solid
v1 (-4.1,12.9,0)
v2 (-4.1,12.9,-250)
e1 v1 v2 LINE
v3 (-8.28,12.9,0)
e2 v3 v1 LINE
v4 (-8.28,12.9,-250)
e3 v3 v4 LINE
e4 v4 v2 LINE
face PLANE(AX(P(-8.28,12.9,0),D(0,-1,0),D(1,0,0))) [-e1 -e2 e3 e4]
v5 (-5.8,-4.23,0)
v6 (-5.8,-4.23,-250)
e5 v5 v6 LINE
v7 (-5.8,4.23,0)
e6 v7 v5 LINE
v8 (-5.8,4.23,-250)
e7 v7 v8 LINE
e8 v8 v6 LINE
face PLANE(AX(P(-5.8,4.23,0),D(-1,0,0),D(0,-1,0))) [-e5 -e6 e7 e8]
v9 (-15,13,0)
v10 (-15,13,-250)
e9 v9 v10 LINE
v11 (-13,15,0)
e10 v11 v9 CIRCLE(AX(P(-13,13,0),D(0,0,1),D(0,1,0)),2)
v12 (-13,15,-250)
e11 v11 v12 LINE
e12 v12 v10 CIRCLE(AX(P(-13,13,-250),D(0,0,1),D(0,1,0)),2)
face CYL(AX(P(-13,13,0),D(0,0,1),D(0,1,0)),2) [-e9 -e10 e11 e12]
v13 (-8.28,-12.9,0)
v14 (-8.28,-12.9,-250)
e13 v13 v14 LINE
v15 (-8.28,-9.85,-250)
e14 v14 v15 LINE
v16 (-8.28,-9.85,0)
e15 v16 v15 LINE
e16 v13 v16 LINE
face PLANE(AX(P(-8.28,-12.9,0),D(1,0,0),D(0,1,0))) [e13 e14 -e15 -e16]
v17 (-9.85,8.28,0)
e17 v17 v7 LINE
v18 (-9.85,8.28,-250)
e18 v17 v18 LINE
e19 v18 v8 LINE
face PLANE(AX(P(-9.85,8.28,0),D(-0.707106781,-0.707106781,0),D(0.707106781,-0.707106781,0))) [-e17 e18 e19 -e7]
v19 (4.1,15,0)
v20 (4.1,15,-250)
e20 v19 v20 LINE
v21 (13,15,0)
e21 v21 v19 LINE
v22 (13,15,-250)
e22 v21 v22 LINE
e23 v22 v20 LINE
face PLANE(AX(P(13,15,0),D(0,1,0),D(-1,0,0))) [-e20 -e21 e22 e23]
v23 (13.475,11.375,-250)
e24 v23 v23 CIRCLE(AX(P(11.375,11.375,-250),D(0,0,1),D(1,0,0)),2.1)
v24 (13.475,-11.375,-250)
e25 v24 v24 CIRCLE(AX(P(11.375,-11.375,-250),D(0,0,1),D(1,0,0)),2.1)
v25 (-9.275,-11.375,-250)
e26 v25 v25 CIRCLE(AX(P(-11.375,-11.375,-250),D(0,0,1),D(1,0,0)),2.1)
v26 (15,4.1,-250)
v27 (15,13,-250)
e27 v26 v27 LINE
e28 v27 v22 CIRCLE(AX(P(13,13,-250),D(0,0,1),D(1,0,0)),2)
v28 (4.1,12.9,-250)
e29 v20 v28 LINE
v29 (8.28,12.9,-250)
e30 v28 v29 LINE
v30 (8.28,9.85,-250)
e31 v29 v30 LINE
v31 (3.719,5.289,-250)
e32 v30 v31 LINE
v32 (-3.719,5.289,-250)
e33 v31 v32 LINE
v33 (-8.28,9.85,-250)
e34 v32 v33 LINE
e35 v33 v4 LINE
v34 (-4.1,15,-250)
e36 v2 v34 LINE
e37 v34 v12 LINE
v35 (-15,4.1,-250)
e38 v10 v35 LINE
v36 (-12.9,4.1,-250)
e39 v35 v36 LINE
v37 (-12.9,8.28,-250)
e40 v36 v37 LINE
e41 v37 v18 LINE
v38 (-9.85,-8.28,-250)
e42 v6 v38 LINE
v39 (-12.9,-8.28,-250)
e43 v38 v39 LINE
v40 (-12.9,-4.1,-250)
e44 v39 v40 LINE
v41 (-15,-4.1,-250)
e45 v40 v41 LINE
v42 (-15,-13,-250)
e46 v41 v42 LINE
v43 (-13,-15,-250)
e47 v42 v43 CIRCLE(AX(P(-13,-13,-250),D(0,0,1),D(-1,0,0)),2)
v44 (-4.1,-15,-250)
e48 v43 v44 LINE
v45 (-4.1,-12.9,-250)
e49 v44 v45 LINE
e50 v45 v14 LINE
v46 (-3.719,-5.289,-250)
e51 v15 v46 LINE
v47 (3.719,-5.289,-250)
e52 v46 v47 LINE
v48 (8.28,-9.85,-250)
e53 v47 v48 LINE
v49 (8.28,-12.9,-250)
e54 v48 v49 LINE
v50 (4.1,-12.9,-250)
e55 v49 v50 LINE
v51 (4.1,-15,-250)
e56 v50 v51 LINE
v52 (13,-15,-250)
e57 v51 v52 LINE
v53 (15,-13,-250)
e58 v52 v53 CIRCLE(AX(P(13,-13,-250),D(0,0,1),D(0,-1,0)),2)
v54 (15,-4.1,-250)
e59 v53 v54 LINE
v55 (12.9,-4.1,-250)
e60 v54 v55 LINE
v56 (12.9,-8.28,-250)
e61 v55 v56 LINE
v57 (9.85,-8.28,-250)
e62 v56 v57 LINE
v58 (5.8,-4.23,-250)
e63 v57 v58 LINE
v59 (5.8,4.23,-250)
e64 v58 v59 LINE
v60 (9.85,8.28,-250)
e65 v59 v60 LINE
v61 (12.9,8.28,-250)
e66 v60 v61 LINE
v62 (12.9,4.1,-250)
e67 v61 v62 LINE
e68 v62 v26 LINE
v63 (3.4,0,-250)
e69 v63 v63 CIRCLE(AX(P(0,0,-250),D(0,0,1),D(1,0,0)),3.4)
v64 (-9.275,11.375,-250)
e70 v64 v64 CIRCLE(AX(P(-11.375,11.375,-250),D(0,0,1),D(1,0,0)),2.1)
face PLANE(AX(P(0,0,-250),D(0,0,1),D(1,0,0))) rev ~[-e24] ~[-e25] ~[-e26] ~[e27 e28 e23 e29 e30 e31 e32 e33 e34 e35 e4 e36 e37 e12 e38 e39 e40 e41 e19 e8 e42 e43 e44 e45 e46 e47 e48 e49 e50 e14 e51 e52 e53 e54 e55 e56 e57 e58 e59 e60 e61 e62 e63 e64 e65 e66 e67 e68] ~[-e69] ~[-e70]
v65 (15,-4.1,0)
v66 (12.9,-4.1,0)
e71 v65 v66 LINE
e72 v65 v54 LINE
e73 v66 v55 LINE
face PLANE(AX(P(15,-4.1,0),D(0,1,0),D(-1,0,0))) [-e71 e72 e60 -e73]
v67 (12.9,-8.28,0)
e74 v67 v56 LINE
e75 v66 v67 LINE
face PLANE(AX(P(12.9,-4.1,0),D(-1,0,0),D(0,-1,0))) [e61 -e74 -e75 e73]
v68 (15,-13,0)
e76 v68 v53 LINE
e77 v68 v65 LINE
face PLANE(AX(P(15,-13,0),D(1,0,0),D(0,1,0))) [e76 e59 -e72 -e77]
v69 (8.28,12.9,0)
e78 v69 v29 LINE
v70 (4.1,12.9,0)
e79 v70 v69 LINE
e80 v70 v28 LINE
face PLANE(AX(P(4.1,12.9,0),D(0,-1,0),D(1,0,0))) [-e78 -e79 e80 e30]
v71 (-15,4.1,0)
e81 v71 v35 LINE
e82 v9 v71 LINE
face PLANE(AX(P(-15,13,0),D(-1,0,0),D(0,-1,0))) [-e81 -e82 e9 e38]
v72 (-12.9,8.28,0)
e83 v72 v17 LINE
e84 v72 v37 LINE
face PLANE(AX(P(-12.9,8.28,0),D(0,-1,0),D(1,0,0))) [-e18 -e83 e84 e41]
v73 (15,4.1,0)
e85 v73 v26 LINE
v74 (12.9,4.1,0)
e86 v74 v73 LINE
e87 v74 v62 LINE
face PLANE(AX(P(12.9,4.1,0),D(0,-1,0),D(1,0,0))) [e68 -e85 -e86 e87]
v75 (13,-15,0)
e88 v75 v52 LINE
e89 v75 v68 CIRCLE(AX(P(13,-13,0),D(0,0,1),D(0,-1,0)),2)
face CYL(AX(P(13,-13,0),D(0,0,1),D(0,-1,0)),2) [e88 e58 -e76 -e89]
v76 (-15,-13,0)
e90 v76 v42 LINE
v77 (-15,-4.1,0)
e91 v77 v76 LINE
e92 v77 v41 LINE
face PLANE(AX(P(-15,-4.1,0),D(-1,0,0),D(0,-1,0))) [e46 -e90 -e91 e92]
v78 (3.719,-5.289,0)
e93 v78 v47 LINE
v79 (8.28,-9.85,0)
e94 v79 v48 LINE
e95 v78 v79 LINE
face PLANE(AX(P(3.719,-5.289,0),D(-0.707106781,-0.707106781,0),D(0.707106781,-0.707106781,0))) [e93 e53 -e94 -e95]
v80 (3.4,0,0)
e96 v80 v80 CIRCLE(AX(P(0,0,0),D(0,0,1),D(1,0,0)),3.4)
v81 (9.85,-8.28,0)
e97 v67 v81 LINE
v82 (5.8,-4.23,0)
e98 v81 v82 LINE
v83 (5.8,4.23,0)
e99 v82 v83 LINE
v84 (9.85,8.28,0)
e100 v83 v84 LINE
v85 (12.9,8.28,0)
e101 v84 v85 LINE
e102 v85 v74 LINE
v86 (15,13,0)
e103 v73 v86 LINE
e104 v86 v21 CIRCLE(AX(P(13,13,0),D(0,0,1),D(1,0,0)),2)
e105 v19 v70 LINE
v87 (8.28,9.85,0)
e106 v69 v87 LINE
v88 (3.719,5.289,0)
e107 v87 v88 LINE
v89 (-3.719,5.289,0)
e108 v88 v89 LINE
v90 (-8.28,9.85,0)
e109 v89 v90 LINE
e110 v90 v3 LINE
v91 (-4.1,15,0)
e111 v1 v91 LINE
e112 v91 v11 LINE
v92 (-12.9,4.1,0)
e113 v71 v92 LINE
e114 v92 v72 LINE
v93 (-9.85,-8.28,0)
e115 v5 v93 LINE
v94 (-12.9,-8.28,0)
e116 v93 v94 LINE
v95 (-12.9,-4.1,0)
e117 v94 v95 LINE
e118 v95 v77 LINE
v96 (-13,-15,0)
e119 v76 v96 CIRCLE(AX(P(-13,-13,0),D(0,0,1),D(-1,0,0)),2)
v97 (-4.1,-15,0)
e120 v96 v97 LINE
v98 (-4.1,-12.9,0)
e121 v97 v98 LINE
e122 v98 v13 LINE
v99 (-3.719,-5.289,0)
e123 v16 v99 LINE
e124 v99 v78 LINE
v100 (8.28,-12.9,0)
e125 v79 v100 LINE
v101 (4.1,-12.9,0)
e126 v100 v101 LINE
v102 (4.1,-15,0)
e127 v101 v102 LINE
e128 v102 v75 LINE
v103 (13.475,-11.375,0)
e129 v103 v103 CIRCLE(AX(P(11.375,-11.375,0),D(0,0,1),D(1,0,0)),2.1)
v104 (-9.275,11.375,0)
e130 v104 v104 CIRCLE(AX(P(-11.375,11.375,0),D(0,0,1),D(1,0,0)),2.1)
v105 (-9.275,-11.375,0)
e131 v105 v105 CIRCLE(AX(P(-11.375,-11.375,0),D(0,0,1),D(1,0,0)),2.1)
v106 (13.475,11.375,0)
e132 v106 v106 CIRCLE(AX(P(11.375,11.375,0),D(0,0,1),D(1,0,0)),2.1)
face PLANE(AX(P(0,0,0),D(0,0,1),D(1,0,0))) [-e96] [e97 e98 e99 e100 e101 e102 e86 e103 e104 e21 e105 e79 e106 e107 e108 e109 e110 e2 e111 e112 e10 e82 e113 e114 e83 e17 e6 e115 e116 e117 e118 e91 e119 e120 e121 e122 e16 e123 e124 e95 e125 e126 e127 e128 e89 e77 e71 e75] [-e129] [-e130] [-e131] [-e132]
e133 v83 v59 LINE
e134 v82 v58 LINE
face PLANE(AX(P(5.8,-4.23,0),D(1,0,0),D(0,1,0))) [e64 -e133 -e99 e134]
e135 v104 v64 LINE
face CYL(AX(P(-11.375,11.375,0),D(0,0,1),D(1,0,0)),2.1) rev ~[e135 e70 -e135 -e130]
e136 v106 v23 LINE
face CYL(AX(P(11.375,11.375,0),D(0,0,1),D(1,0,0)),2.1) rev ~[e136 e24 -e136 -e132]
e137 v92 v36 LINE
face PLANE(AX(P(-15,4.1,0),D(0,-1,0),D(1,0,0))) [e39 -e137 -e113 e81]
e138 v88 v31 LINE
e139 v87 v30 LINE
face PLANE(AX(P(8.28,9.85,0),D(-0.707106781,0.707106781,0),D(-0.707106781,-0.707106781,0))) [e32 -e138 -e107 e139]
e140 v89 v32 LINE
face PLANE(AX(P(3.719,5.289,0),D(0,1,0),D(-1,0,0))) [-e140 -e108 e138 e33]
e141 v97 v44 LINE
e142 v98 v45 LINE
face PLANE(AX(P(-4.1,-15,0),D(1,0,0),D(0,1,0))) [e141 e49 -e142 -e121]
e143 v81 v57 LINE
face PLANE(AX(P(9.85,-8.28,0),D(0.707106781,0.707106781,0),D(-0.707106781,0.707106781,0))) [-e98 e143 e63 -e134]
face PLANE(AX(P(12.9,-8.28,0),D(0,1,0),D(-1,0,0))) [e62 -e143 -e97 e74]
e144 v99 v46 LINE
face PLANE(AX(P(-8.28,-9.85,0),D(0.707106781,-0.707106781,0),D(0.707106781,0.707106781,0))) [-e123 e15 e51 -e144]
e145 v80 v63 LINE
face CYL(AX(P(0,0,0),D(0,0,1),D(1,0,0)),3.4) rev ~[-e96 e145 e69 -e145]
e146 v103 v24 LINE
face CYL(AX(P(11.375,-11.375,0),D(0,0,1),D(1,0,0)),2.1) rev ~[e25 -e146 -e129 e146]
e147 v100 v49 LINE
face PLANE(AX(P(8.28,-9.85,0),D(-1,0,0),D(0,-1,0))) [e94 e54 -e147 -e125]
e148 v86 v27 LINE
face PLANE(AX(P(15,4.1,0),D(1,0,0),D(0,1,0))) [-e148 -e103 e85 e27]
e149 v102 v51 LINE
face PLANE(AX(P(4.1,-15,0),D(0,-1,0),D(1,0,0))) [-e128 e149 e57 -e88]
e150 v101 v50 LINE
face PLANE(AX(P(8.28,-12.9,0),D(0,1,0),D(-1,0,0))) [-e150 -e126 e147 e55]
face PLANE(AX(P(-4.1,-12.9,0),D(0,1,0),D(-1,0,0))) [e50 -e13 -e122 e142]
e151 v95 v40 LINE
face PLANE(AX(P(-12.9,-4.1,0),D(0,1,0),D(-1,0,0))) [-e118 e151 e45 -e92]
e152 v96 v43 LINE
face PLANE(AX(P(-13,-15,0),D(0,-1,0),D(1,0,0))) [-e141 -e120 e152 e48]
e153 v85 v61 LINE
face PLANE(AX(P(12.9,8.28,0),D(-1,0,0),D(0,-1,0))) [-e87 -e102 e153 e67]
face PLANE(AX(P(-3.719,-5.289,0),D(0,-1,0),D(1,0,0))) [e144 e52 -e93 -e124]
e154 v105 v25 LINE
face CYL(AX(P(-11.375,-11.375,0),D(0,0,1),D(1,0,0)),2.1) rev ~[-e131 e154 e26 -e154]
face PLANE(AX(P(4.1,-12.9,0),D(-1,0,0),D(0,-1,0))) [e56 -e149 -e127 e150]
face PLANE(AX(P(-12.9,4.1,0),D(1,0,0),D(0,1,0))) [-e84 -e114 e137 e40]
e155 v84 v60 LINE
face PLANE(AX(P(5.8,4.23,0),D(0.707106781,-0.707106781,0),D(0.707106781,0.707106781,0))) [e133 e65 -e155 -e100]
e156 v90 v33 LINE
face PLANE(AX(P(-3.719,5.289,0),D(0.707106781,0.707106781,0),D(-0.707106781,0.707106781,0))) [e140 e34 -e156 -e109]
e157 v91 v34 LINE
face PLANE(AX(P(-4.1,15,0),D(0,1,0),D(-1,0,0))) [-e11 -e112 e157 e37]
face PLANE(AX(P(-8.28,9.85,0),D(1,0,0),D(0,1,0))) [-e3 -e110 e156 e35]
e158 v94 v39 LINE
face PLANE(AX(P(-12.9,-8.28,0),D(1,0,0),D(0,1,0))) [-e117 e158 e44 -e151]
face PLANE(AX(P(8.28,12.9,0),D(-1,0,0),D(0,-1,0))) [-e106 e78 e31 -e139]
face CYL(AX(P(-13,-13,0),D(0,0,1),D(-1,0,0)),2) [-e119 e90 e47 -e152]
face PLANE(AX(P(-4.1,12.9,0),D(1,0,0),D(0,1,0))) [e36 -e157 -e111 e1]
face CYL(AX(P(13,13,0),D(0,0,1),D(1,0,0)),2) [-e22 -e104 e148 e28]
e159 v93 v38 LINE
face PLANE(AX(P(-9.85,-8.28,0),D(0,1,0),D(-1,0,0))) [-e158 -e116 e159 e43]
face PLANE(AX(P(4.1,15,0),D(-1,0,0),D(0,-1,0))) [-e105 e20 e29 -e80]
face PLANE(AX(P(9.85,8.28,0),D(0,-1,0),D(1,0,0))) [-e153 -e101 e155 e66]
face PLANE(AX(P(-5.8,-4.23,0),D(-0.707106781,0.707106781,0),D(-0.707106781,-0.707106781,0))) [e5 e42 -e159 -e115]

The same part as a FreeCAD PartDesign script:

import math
import FreeCAD as App
import Part
import Sketcher
from FreeCAD import Vector

doc = App.newDocument("Part")
body = doc.addObject("PartDesign::Body", "Body")

sketch1 = body.newObject("Sketcher::SketchObject", "Sketch")
sketch1.AttachmentSupport = (doc.getObject("XY_Plane"), [""])
sketch1.MapMode = "FlatFace"
sketch1.addGeometry([
    Part.LineSegment(Vector(-15, 13, 0), Vector(-15, 4.1, 0)),
    Part.LineSegment(Vector(-15, 4.1, 0), Vector(-12.9, 4.1, 0)),
    Part.LineSegment(Vector(-12.9, 4.1, 0), Vector(-12.9, 8.3, 0)),
    Part.LineSegment(Vector(-12.9, 8.3, 0), Vector(-9.8, 8.3, 0)),
    Part.LineSegment(Vector(-9.8, 8.3, 0), Vector(-5.8, 4.2, 0)),
    Part.LineSegment(Vector(-5.8, 4.2, 0), Vector(-5.8, -4.2, 0)),
    Part.LineSegment(Vector(-5.8, -4.2, 0), Vector(-9.8, -8.3, 0)),
    Part.LineSegment(Vector(-9.8, -8.3, 0), Vector(-12.9, -8.3, 0)),
    Part.LineSegment(Vector(-12.9, -8.3, 0), Vector(-12.9, -4.1, 0)),
    Part.LineSegment(Vector(-12.9, -4.1, 0), Vector(-15, -4.1, 0)),
    Part.LineSegment(Vector(-15, -4.1, 0), Vector(-15, -13, 0)),
    Part.ArcOfCircle(Part.Circle(Vector(-13, -13, 0), Vector(0, 0, 1), 2), math.radians(180), math.radians(270)),
    Part.LineSegment(Vector(-13, -15, 0), Vector(-4.1, -15, 0)),
    Part.LineSegment(Vector(-4.1, -15, 0), Vector(-4.1, -12.9, 0)),
    Part.LineSegment(Vector(-4.1, -12.9, 0), Vector(-8.3, -12.9, 0)),
    Part.LineSegment(Vector(-8.3, -12.9, 0), Vector(-8.3, -9.8, 0)),
    Part.LineSegment(Vector(-8.3, -9.8, 0), Vector(-3.7, -5.3, 0)),
    Part.LineSegment(Vector(-3.7, -5.3, 0), Vector(3.7, -5.3, 0)),
    Part.LineSegment(Vector(3.7, -5.3, 0), Vector(8.3, -9.8, 0)),
    Part.LineSegment(Vector(8.3, -9.8, 0), Vector(8.3, -12.9, 0)),
    Part.LineSegment(Vector(8.3, -12.9, 0), Vector(4.1, -12.9, 0)),
    Part.LineSegment(Vector(4.1, -12.9, 0), Vector(4.1, -15, 0)),
    Part.LineSegment(Vector(4.1, -15, 0), Vector(13, -15, 0)),
    Part.ArcOfCircle(Part.Circle(Vector(13, -13, 0), Vector(0, 0, 1), 2), math.radians(-90), math.radians(0)),
    Part.LineSegment(Vector(15, -13, 0), Vector(15, -4.1, 0)),
    Part.LineSegment(Vector(15, -4.1, 0), Vector(12.9, -4.1, 0)),
    Part.LineSegment(Vector(12.9, -4.1, 0), Vector(12.9, -8.3, 0)),
    Part.LineSegment(Vector(12.9, -8.3, 0), Vector(9.8, -8.3, 0)),
    Part.LineSegment(Vector(9.8, -8.3, 0), Vector(5.8, -4.2, 0)),
    Part.LineSegment(Vector(5.8, -4.2, 0), Vector(5.8, 4.2, 0)),
    Part.LineSegment(Vector(5.8, 4.2, 0), Vector(9.8, 8.3, 0)),
    Part.LineSegment(Vector(9.8, 8.3, 0), Vector(12.9, 8.3, 0)),
    Part.LineSegment(Vector(12.9, 8.3, 0), Vector(12.9, 4.1, 0)),
    Part.LineSegment(Vector(12.9, 4.1, 0), Vector(15, 4.1, 0)),
    Part.LineSegment(Vector(15, 4.1, 0), Vector(15, 13, 0)),
    Part.ArcOfCircle(Part.Circle(Vector(13, 13, 0), Vector(0, 0, 1), 2), math.radians(0), math.radians(90)),
    Part.LineSegment(Vector(13, 15, 0), Vector(4.1, 15, 0)),
    Part.LineSegment(Vector(4.1, 15, 0), Vector(4.1, 12.9, 0)),
    Part.LineSegment(Vector(4.1, 12.9, 0), Vector(8.3, 12.9, 0)),
    Part.LineSegment(Vector(8.3, 12.9, 0), Vector(8.3, 9.8, 0)),
    Part.LineSegment(Vector(8.3, 9.8, 0), Vector(3.7, 5.3, 0)),
    Part.LineSegment(Vector(3.7, 5.3, 0), Vector(-3.7, 5.3, 0)),
    Part.LineSegment(Vector(-3.7, 5.3, 0), Vector(-8.3, 9.8, 0)),
    Part.LineSegment(Vector(-8.3, 9.8, 0), Vector(-8.3, 12.9, 0)),
    Part.LineSegment(Vector(-8.3, 12.9, 0), Vector(-4.1, 12.9, 0)),
    Part.LineSegment(Vector(-4.1, 12.9, 0), Vector(-4.1, 15, 0)),
    Part.LineSegment(Vector(-4.1, 15, 0), Vector(-13, 15, 0)),
    Part.ArcOfCircle(Part.Circle(Vector(-13, 13, 0), Vector(0, 0, 1), 2), math.radians(90), math.radians(180)),
    Part.Circle(Vector(-11.4, -11.4, 0), Vector(0, 0, 1), 2.1),
    Part.Circle(Vector(11.4, -11.4, 0), Vector(0, 0, 1), 2.1),
    Part.Circle(Vector(-11.4, 11.4, 0), Vector(0, 0, 1), 2.1),
    Part.Circle(Vector(0, 0, 0), Vector(0, 0, 1), 3.4),
    Part.Circle(Vector(11.4, 11.4, 0), Vector(0, 0, 1), 2.1),
], False)
sketch1.addConstraint([
    Sketcher.Constraint("Coincident", 0, 2, 1, 1),
    Sketcher.Constraint("Coincident", 1, 2, 2, 1),
    Sketcher.Constraint("Coincident", 2, 2, 3, 1),
    Sketcher.Constraint("Coincident", 3, 2, 4, 1),
    Sketcher.Constraint("Coincident", 4, 2, 5, 1),
    Sketcher.Constraint("Coincident", 5, 2, 6, 1),
    Sketcher.Constraint("Coincident", 6, 2, 7, 1),
    Sketcher.Constraint("Coincident", 7, 2, 8, 1),
    Sketcher.Constraint("Coincident", 8, 2, 9, 1),
    Sketcher.Constraint("Coincident", 9, 2, 10, 1),
    Sketcher.Constraint("Tangent", 10, 2, 11, 1),
    Sketcher.Constraint("Tangent", 11, 2, 12, 1),
    Sketcher.Constraint("Coincident", 12, 2, 13, 1),
    Sketcher.Constraint("Coincident", 13, 2, 14, 1),
    Sketcher.Constraint("Coincident", 14, 2, 15, 1),
    Sketcher.Constraint("Coincident", 15, 2, 16, 1),
    Sketcher.Constraint("Coincident", 16, 2, 17, 1),
    Sketcher.Constraint("Coincident", 17, 2, 18, 1),
    Sketcher.Constraint("Coincident", 18, 2, 19, 1),
    Sketcher.Constraint("Coincident", 19, 2, 20, 1),
    Sketcher.Constraint("Coincident", 20, 2, 21, 1),
    Sketcher.Constraint("Coincident", 21, 2, 22, 1),
    Sketcher.Constraint("Tangent", 22, 2, 23, 1),
    Sketcher.Constraint("Tangent", 23, 2, 24, 1),
    Sketcher.Constraint("Coincident", 24, 2, 25, 1),
    Sketcher.Constraint("Coincident", 25, 2, 26, 1),
    Sketcher.Constraint("Coincident", 26, 2, 27, 1),
    Sketcher.Constraint("Coincident", 27, 2, 28, 1),
    Sketcher.Constraint("Coincident", 28, 2, 29, 1),
    Sketcher.Constraint("Coincident", 29, 2, 30, 1),
    Sketcher.Constraint("Coincident", 30, 2, 31, 1),
    Sketcher.Constraint("Coincident", 31, 2, 32, 1),
    Sketcher.Constraint("Coincident", 32, 2, 33, 1),
    Sketcher.Constraint("Coincident", 33, 2, 34, 1),
    Sketcher.Constraint("Tangent", 34, 2, 35, 1),
    Sketcher.Constraint("Tangent", 35, 2, 36, 1),
    Sketcher.Constraint("Coincident", 36, 2, 37, 1),
    Sketcher.Constraint("Coincident", 37, 2, 38, 1),
    Sketcher.Constraint("Coincident", 38, 2, 39, 1),
    Sketcher.Constraint("Coincident", 39, 2, 40, 1),
    Sketcher.Constraint("Coincident", 40, 2, 41, 1),
    Sketcher.Constraint("Coincident", 41, 2, 42, 1),
    Sketcher.Constraint("Coincident", 42, 2, 43, 1),
    Sketcher.Constraint("Coincident", 43, 2, 44, 1),
    Sketcher.Constraint("Coincident", 44, 2, 45, 1),
    Sketcher.Constraint("Coincident", 45, 2, 46, 1),
    Sketcher.Constraint("Tangent", 46, 2, 47, 1),
    Sketcher.Constraint("Tangent", 47, 2, 0, 1),
    Sketcher.Constraint("Vertical", 0),
    Sketcher.Constraint("Horizontal", 1),
    Sketcher.Constraint("Vertical", 2),
    Sketcher.Constraint("Horizontal", 3),
    Sketcher.Constraint("Vertical", 5),
    Sketcher.Constraint("Horizontal", 7),
    Sketcher.Constraint("Vertical", 8),
    Sketcher.Constraint("Horizontal", 9),
    Sketcher.Constraint("Vertical", 10),
    Sketcher.Constraint("Horizontal", 12),
    Sketcher.Constraint("Vertical", 13),
    Sketcher.Constraint("Horizontal", 14),
    Sketcher.Constraint("Vertical", 15),
    Sketcher.Constraint("Horizontal", 17),
    Sketcher.Constraint("Vertical", 19),
    Sketcher.Constraint("Horizontal", 20),
    Sketcher.Constraint("Vertical", 21),
    Sketcher.Constraint("Horizontal", 22),
    Sketcher.Constraint("Vertical", 24),
    Sketcher.Constraint("Horizontal", 25),
    Sketcher.Constraint("Vertical", 26),
    Sketcher.Constraint("Horizontal", 27),
    Sketcher.Constraint("Vertical", 29),
    Sketcher.Constraint("Horizontal", 31),
    Sketcher.Constraint("Vertical", 32),
    Sketcher.Constraint("Horizontal", 33),
    Sketcher.Constraint("Vertical", 34),
    Sketcher.Constraint("Horizontal", 36),
    Sketcher.Constraint("Vertical", 37),
    Sketcher.Constraint("Horizontal", 38),
    Sketcher.Constraint("Vertical", 39),
    Sketcher.Constraint("Horizontal", 41),
    Sketcher.Constraint("Vertical", 43),
    Sketcher.Constraint("Horizontal", 44),
    Sketcher.Constraint("Vertical", 45),
    Sketcher.Constraint("Horizontal", 46),
    Sketcher.Constraint("Coincident", 51, 3, -1, 1),
    Sketcher.Constraint("Equal", 11, 23),
    Sketcher.Constraint("Equal", 23, 35),
    Sketcher.Constraint("Equal", 35, 47),
    Sketcher.Constraint("Equal", 48, 49),
    Sketcher.Constraint("Equal", 49, 50),
    Sketcher.Constraint("Equal", 50, 52),
    Sketcher.Constraint("Symmetric", 11, 3, 35, 3, -1, 1),
    Sketcher.Constraint("Symmetric", 23, 3, 47, 3, -1, 1),
    Sketcher.Constraint("Symmetric", 49, 3, 50, 3, -1, 1),
    Sketcher.Constraint("Symmetric", 48, 3, 52, 3, -1, 1),
    Sketcher.Constraint("Symmetric", 1, 2, 25, 2, -1, 1),
    Sketcher.Constraint("Symmetric", 3, 2, 27, 2, -1, 1),
    Sketcher.Constraint("Symmetric", 4, 2, 28, 2, -1, 1),
    Sketcher.Constraint("Symmetric", 6, 2, 30, 2, -1, 1),
    Sketcher.Constraint("Symmetric", 8, 2, 32, 2, -1, 1),
    Sketcher.Constraint("Symmetric", 13, 2, 37, 2, -1, 1),
    Sketcher.Constraint("Symmetric", 15, 2, 39, 2, -1, 1),
    Sketcher.Constraint("Symmetric", 16, 2, 40, 2, -1, 1),
    Sketcher.Constraint("Symmetric", 18, 2, 42, 2, -1, 1),
    Sketcher.Constraint("Symmetric", 20, 2, 44, 2, -1, 1),
    Sketcher.Constraint("Symmetric", 11, 3, 23, 3, -2),
    Sketcher.Constraint("Symmetric", 48, 3, 49, 3, -2),
    Sketcher.Constraint("Symmetric", 15, 2, 18, 2, -2),
    Sketcher.Constraint("Symmetric", 13, 2, 20, 2, -2),
    Sketcher.Constraint("Symmetric", 8, 2, 25, 2, -2),
    Sketcher.Constraint("Symmetric", 6, 2, 27, 2, -2),
    Sketcher.Constraint("Perpendicular", 4, 6),
    Sketcher.Constraint("Parallel", 6, 16),
    Sketcher.Constraint("Perpendicular", 16, 18),
    Sketcher.Constraint("Perpendicular", 28, 30),
    Sketcher.Constraint("Perpendicular", 40, 42),
    Sketcher.Constraint("Horizontal", 5, 2, 28, 2),
    Sketcher.Constraint("Equal", 46, 0),
    Sketcher.Constraint("Equal", 44, 2),
    Sketcher.Constraint("Equal", 33, 13),
    Sketcher.Constraint("Equal", 31, 15),
    Sketcher.Constraint("Radius", 11, 2.0),
    Sketcher.Constraint("Diameter", 48, 4.2),
    Sketcher.Constraint("Diameter", 51, 6.8),
    Sketcher.Constraint("DistanceX", 1, 1, 1, 2, 2.1),
    Sketcher.Constraint("DistanceX", 12, 1, 12, 2, 8.9),
    Sketcher.Constraint("DistanceX", 11, 3, -1, 1, 13.0),
    Sketcher.Constraint("DistanceY", 11, 3, -1, 1, 13.0),
    Sketcher.Constraint("DistanceX", 3, 1, 3, 2, 3.05),
    Sketcher.Constraint("DistanceX", 14, 2, 14, 1, 4.18),
    Sketcher.Constraint("DistanceY", 5, 2, 5, 1, 8.46),
    Sketcher.Constraint("DistanceX", 17, 1, 17, 2, 7.438),
    Sketcher.Constraint("DistanceX", 48, 3, 49, 3, 22.75),
    Sketcher.Constraint("DistanceY", 48, 3, 50, 3, 22.75),
])
pad1 = body.newObject("PartDesign::Pad", "Pad")
pad1.Profile = sketch1
pad1.Length = 250
pad1.Reversed = True

doc.recompute()
